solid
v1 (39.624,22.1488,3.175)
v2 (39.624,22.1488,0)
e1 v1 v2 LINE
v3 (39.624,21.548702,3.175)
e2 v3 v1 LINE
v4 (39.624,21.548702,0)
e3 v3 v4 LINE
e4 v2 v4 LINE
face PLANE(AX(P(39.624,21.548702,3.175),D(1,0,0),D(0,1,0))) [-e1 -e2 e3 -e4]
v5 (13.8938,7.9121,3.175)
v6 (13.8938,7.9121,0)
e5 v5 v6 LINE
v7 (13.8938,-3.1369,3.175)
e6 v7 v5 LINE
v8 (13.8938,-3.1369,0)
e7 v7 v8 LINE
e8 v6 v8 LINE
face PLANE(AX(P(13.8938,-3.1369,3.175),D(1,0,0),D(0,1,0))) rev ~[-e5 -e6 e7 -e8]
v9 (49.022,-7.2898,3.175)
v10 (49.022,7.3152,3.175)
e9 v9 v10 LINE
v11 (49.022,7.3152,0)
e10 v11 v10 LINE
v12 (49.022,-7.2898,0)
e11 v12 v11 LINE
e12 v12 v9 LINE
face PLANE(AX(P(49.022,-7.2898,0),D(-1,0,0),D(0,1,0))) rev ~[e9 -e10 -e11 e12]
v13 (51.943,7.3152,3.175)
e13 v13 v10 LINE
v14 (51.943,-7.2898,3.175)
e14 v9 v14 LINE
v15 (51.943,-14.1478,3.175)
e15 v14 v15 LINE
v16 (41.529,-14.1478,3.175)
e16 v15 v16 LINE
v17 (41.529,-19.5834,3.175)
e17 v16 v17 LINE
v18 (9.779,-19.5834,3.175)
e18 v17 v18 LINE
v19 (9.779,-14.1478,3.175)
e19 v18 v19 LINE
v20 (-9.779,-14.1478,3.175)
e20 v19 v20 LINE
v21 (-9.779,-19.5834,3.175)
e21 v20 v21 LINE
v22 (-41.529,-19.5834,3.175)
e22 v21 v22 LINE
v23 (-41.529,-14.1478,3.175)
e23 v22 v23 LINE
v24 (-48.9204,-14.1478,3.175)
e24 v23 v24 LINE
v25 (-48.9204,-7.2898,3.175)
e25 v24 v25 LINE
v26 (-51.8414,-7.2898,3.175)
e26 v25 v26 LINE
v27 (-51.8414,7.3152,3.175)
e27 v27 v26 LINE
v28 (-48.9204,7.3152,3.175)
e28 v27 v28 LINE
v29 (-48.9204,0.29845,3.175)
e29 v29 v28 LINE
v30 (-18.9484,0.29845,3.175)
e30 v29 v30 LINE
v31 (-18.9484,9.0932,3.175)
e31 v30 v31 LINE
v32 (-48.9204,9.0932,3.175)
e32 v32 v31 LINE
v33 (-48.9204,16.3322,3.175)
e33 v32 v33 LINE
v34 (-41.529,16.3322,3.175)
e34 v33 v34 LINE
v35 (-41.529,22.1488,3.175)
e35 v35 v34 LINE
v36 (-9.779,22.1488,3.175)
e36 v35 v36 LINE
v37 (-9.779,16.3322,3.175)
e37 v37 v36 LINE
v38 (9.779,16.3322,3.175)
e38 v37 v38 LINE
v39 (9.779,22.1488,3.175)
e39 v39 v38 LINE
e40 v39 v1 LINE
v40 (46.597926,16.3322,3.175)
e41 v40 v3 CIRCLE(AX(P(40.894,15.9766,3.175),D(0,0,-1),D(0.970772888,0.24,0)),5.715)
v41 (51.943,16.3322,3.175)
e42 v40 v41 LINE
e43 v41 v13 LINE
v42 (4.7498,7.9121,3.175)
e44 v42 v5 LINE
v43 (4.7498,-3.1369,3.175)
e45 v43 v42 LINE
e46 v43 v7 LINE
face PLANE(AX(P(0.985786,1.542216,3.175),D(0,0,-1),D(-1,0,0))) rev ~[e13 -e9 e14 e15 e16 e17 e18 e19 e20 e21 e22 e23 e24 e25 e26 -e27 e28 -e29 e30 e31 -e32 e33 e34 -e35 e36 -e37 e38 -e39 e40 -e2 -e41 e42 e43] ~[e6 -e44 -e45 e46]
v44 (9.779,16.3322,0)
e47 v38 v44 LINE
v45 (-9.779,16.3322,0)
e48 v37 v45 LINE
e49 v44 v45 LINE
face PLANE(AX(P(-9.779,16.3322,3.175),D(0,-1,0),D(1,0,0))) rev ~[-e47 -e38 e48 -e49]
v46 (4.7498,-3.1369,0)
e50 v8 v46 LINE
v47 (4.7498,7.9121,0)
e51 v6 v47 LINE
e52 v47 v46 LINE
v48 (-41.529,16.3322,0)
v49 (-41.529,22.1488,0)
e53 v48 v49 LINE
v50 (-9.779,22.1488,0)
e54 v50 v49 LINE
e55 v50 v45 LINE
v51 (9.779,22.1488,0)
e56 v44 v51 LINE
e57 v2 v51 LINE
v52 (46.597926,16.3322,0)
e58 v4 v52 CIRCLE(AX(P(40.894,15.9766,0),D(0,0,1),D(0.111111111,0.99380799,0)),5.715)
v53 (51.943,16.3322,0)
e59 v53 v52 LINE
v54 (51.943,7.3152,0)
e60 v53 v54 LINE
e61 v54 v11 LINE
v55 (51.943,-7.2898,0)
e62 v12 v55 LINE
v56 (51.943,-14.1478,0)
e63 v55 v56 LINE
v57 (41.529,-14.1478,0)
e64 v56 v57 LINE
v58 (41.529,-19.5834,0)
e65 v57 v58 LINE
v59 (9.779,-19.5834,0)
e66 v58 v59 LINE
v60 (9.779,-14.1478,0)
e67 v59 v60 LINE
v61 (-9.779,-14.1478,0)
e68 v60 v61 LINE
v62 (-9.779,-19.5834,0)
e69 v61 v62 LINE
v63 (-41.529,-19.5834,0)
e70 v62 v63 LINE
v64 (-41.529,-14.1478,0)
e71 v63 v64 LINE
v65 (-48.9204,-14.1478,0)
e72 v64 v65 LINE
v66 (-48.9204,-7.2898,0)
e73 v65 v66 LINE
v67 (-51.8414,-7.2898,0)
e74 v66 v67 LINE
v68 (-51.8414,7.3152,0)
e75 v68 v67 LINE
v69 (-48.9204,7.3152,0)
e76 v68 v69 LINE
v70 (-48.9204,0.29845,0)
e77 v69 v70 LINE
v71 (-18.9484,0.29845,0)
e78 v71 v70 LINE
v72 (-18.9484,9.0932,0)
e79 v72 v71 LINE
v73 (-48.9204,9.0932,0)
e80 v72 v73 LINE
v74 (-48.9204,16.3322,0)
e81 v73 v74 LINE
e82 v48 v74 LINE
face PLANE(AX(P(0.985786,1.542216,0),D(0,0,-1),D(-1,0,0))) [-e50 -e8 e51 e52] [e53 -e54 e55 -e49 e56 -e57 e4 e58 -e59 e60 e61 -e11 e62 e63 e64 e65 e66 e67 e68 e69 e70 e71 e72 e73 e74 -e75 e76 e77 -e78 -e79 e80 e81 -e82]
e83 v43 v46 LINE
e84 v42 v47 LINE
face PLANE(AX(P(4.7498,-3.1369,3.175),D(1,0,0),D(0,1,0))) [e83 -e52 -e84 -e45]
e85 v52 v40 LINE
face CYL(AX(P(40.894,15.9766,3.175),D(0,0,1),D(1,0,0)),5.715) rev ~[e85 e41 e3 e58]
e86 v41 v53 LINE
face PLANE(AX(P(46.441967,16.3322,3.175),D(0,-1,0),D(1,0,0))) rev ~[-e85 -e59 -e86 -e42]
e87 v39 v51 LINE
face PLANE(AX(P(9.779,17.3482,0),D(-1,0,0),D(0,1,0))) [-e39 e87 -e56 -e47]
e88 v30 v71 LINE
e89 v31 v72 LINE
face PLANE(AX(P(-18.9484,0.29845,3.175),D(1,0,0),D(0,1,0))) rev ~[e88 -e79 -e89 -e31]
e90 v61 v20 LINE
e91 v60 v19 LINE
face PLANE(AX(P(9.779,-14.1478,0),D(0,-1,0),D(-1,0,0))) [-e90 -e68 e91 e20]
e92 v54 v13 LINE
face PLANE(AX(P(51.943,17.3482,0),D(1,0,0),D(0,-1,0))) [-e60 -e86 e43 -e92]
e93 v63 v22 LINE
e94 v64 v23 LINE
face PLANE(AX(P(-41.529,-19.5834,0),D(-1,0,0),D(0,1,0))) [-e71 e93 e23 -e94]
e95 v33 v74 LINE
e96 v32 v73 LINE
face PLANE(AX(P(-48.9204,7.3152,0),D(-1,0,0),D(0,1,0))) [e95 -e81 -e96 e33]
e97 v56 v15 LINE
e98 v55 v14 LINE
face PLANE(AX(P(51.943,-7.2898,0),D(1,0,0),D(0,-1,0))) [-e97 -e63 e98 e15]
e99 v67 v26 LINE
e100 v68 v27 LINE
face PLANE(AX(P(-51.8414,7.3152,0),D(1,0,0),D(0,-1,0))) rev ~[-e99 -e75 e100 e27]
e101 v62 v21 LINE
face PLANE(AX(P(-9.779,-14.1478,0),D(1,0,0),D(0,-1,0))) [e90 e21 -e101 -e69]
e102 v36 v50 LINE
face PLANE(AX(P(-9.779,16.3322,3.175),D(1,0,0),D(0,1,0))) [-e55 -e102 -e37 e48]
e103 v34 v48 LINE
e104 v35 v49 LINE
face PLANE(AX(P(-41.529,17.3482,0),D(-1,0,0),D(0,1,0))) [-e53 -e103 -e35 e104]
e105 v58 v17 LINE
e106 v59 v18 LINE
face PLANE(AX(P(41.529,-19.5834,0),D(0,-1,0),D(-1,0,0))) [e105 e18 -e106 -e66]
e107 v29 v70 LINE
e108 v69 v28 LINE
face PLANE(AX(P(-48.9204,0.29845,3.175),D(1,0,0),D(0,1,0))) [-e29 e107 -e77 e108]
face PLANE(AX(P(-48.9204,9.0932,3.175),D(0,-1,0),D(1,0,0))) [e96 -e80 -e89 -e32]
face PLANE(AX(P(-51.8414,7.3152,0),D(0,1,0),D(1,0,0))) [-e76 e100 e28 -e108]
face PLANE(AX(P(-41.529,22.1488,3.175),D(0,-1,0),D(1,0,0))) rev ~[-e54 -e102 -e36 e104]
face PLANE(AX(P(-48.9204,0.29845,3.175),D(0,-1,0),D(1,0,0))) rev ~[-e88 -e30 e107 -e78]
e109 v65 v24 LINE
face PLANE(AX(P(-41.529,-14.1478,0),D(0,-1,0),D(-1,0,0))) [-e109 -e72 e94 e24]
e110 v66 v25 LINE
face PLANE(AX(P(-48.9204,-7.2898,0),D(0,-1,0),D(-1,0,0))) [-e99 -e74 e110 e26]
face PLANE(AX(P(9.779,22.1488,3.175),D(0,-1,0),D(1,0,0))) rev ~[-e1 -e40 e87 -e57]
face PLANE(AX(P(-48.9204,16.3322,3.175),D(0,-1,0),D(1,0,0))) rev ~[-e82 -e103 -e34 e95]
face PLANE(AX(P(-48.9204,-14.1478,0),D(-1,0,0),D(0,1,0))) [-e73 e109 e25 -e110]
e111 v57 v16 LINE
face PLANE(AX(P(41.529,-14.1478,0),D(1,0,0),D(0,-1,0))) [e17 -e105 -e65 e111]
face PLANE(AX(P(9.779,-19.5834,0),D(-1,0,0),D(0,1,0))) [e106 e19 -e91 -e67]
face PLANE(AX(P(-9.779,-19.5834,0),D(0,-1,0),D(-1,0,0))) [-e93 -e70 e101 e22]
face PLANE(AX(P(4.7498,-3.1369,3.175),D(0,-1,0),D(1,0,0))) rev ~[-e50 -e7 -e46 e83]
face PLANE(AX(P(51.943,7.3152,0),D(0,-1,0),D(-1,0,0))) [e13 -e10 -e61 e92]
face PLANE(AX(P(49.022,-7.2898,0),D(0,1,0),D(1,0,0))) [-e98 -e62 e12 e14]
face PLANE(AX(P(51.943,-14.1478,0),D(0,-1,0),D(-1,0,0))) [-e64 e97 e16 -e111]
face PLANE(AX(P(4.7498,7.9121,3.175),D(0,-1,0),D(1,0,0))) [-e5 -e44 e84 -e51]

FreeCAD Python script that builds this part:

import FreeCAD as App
import Part
import Sketcher
Q = App.Units.Quantity


def add_polygon(sketch, points):
    """Adds a closed chain of lines whose ends are joined by coincident constraints."""
    first, n = sketch.GeometryCount, len(points)
    for a, b in zip(points, points[1:] + points[:1]):
        sketch.addGeometry(Part.LineSegment(App.Vector(*a, 0), App.Vector(*b, 0)), False)
    for i in range(n):
        sketch.addConstraint(Sketcher.Constraint("Coincident", first + i, 2, first + (i + 1) % n, 1))

doc = App.newDocument("Part")
body = doc.addObject("PartDesign::Body", "Body")

# Sketch on XY plane
sketch1 = doc.addObject("Sketcher::SketchObject", "Sketch")
body.addObject(sketch1)
sketch1.AttachmentSupport = (doc.XY_Plane, [""])
sketch1.MapMode = "FlatFace"
add_polygon(sketch1, [(-51.8, 7.3), (-51.8, -7.3), (-48.9, -7.3), (-48.9, -14.1), (-41.5, -14.1), (-41.5, -19.6), (-9.8, -19.6), (-9.8, -14.1), (9.8, -14.1), (9.8, -19.6), (41.5, -19.6), (41.5, -14.1), (51.9, -14.1), (51.9, -7.3), (49, -7.3), (49, 7.3), (51.9, 7.3), (51.9, 17.3), (41.5, 17.3), (41.5, 22.8), (9.8, 22.8), (9.8, 17.3), (-9.8, 17.3), (-9.8, 22.8), (-41.5, 22.8), (-41.5, 17.3), (-48.9, 17.3), (-48.9, 7.3)])  # lines 0-27
sketch1.addConstraint([
    Sketcher.Constraint("Vertical", 0),
    Sketcher.Constraint("Horizontal", 1),
    Sketcher.Constraint("Vertical", 2),
    Sketcher.Constraint("Horizontal", 3),
    Sketcher.Constraint("Vertical", 4),
    Sketcher.Constraint("Horizontal", 5),
    Sketcher.Constraint("Vertical", 6),
    Sketcher.Constraint("Horizontal", 7),
    Sketcher.Constraint("Vertical", 8),
    Sketcher.Constraint("Horizontal", 9),
    Sketcher.Constraint("Vertical", 10),
    Sketcher.Constraint("Horizontal", 11),
    Sketcher.Constraint("Vertical", 12),
    Sketcher.Constraint("Horizontal", 13),
    Sketcher.Constraint("Vertical", 14),
    Sketcher.Constraint("Horizontal", 15),
    Sketcher.Constraint("Vertical", 16),
    Sketcher.Constraint("Horizontal", 17),
    Sketcher.Constraint("Vertical", 18),
    Sketcher.Constraint("Horizontal", 19),
    Sketcher.Constraint("Vertical", 20),
    Sketcher.Constraint("Horizontal", 21),
    Sketcher.Constraint("Vertical", 22),
    Sketcher.Constraint("Horizontal", 23),
    Sketcher.Constraint("Vertical", 24),
    Sketcher.Constraint("Horizontal", 25),
    Sketcher.Constraint("Vertical", 26),
    Sketcher.Constraint("Horizontal", 27),
    Sketcher.Constraint("Symmetric", 5, 2, 8, 2, -2),
    Sketcher.Constraint("Symmetric", 3, 2, 10, 2, -2),
    Sketcher.Constraint("Symmetric", 19, 2, 22, 2, -2),
    Sketcher.Constraint("Symmetric", 17, 2, 24, 2, -2),
    Sketcher.Constraint("Horizontal", 3, 2, 6, 2),
    Sketcher.Constraint("Horizontal", 1, 2, 12, 2),
    Sketcher.Constraint("Horizontal", 17, 2, 20, 2),
    Sketcher.Constraint("Horizontal", 15, 2, 26, 2),
    Sketcher.Constraint("Vertical", 12, 2, 15, 2),
    Sketcher.Constraint("Vertical", 10, 2, 17, 2),
    Sketcher.Constraint("Vertical", 8, 2, 19, 2),
    Sketcher.Constraint("Vertical", 2, 2, 25, 2),
    Sketcher.Constraint("Equal", 1, 13),
    Sketcher.Constraint("Equal", 10, 18),
    Sketcher.Constraint("DistanceX", 5, 1, 5, 2, Q("1.25 in")),
    Sketcher.Constraint("DistanceX", 7, 1, 7, 2, Q("0.77 in")),
    Sketcher.Constraint("DistanceX", 11, 1, 11, 2, Q("0.41 in")),
    Sketcher.Constraint("DistanceY", 2, 2, 2, 1, Q("0.27 in")),
    Sketcher.Constraint("DistanceX", 1, 1, 1, 2, Q("0.115 in")),
    Sketcher.Constraint("DistanceX", 3, 1, 3, 2, Q("0.291 in")),
    Sketcher.Constraint("DistanceY", 0, 2, 0, 1, Q("0.575 in")),
    Sketcher.Constraint("DistanceY", 4, 2, 4, 1, Q("0.214 in")),
    Sketcher.Constraint("DistanceY", 16, 1, 16, 2, Q("0.395 in")),
    Sketcher.Constraint("DistanceY", 0, 2, -1, 1, Q("0.287 in")),
])
pad1 = doc.addObject("PartDesign::Pad", "Pad")
body.addObject(pad1)
pad1.Profile = sketch1
pad1.Length = Q("0.125 in")

# Sketch on XY plane
sketch2 = doc.addObject("Sketcher::SketchObject", "Sketch001")
body.addObject(sketch2)
sketch2.AttachmentSupport = (doc.XY_Plane, [""])
sketch2.MapMode = "FlatFace"
sketch2.AttachmentOffset = App.Placement(App.Vector(0, 0, 0.125 * 25.4), App.Rotation())
sketch2.addGeometry(Part.Circle(App.Vector(41, 16, 0), App.Vector(0, 0, 1), 6), False)  # 0
add_polygon(sketch2, [(-49, 9), (-49, 0), (-19, 0), (-19, 9)])  # lines 1-4
add_polygon(sketch2, [(5, 8), (5, -3), (14, -3), (14, 8)])  # lines 5-8
sketch2.addConstraint([
    Sketcher.Constraint("Vertical", 1),
    Sketcher.Constraint("Horizontal", 2),
    Sketcher.Constraint("Vertical", 3),
    Sketcher.Constraint("Horizontal", 4),
    Sketcher.Constraint("Vertical", 5),
    Sketcher.Constraint("Horizontal", 6),
    Sketcher.Constraint("Vertical", 7),
    Sketcher.Constraint("Horizontal", 8),
    Sketcher.Constraint("Diameter", 0, Q("0.45 in")),
    Sketcher.Constraint("DistanceX", 2, 1, 2, 2, Q("1.18 in")),
    Sketcher.Constraint("DistanceX", 6, 1, 6, 2, Q("0.36 in")),
    Sketcher.Constraint("DistanceY", 5, 2, 5, 1, Q("0.435 in")),
    Sketcher.Constraint("DistanceX", -1, 1, 0, 3, Q("1.61 in")),
    Sketcher.Constraint("DistanceY", -1, 1, 0, 3, Q("0.629 in")),
    Sketcher.Constraint("DistanceX", 1, 2, -1, 1, Q("1.926 in")),
    Sketcher.Constraint("DistanceY", -1, 1, 3, 2, Q("0.358 in")),
    Sketcher.Constraint("DistanceX", -1, 1, 5, 2, Q("0.187 in")),
    Sketcher.Constraint("DistanceY", 5, 2, -1, 1, Q("0.1235 in")),
    Sketcher.Constraint("DistanceY", 1, 2, 1, 1, 8.79475),
])
pocket1 = doc.addObject("PartDesign::Pocket", "Pocket")
body.addObject(pocket1)
pocket1.Profile = sketch2
pocket1.Length = Q("0.214 in")

# Sketch on XY plane
sketch3 = doc.addObject("Sketcher::SketchObject", "Sketch002")
body.addObject(sketch3)
sketch3.AttachmentSupport = (doc.XY_Plane, [""])
sketch3.MapMode = "FlatFace"
sketch3.AttachmentOffset = App.Placement(App.Vector(0, 0, 0.125 * 25.4), App.Rotation())
add_polygon(sketch3, [(39.6, 22.8), (39.6, 21.5), (41.5, 21.5), (41.5, 22.8)])  # lines 0-3
sketch3.addConstraint([
    Sketcher.Constraint("Vertical", 0),
    Sketcher.Constraint("Horizontal", 1),
    Sketcher.Constraint("Vertical", 2),
    Sketcher.Constraint("Horizontal", 3),
    Sketcher.Constraint("DistanceX", 1, 1, 1, 2, Q("0.075 in")),
    Sketcher.Constraint("DistanceX", -1, 1, 0, 2, Q("1.56 in")),
    Sketcher.Constraint("DistanceY", -1, 1, 2, 2, Q("0.897 in")),
    Sketcher.Constraint("DistanceY", 0, 2, 0, 1, 1.235098),
])
pocket2 = doc.addObject("PartDesign::Pocket", "Pocket001")
body.addObject(pocket2)
pocket2.Profile = sketch3
pocket2.Type = "ThroughAll"

# Sketch on XY plane
sketch4 = doc.addObject("Sketcher::SketchObject", "Sketch003")
body.addObject(sketch4)
sketch4.AttachmentSupport = (doc.XY_Plane, [""])
sketch4.MapMode = "FlatFace"
sketch4.AttachmentOffset = App.Placement(App.Vector(0, 0, 0.125 * 25.4), App.Rotation())
add_polygon(sketch4, [(46.4, 17.3), (46.4, 16.3), (51.9, 16.3), (51.9, 17.3)])  # lines 0-3
add_polygon(sketch4, [(-9.8, 17.3), (-9.8, 16.3), (9.8, 16.3), (9.8, 17.3)])  # lines 4-7
add_polygon(sketch4, [(-48.9, 17.3), (-48.9, 16.3), (-41.5, 16.3), (-41.5, 17.3)])  # lines 8-11
sketch4.addConstraint([
    Sketcher.Constraint("Vertical", 0),
    Sketcher.Constraint("Horizontal", 1),
    Sketcher.Constraint("Vertical", 2),
    Sketcher.Constraint("Horizontal", 3),
    Sketcher.Constraint("Vertical", 4),
    Sketcher.Constraint("Horizontal", 5),
    Sketcher.Constraint("Vertical", 6),
    Sketcher.Constraint("Horizontal", 7),
    Sketcher.Constraint("Vertical", 8),
    Sketcher.Constraint("Horizontal", 9),
    Sketcher.Constraint("Vertical", 10),
    Sketcher.Constraint("Horizontal", 11),
    Sketcher.Constraint("Horizontal", 1, 2, 4, 2),
    Sketcher.Constraint("Horizontal", 3, 2, 6, 2),
    Sketcher.Constraint("Horizontal", 5, 2, 8, 2),
    Sketcher.Constraint("Horizontal", 7, 2, 10, 2),
    Sketcher.Constraint("DistanceX", 5, 1, 5, 2, Q("0.77 in")),
    Sketcher.Constraint("DistanceY", 0, 2, 0, 1, Q("0.04 in")),
    Sketcher.Constraint("DistanceX", 9, 1, 9, 2, Q("0.291 in")),
    Sketcher.Constraint("DistanceX", 4, 2, 1, 2, Q("2.43 in")),
    Sketcher.Constraint("DistanceX", 9, 2, 4, 2, Q("1.25 in")),
    Sketcher.Constraint("DistanceY", -1, 1, 0, 2, Q("0.643 in")),
    Sketcher.Constraint("DistanceX", -1, 1, 1, 2, Q("2.045 in")),
    Sketcher.Constraint("DistanceX", 1, 1, 1, 2, 5.501033),
])
pocket3 = doc.addObject("PartDesign::Pocket", "Pocket002")
body.addObject(pocket3)
pocket3.Profile = sketch4
pocket3.Type = "ThroughAll"

# Sketch on XY plane
sketch5 = doc.addObject("Sketcher::SketchObject", "Sketch004")
body.addObject(sketch5)
sketch5.AttachmentSupport = (doc.XY_Plane, [""])
sketch5.MapMode = "FlatFace"
sketch5.AttachmentOffset = App.Placement(App.Vector(0, 0, 0.125 * 25.4), App.Rotation())
add_polygon(sketch5, [(-41.5, 22.8), (-41.5, 22.1), (-9.8, 22.1), (-9.8, 22.8)])  # lines 0-3
add_polygon(sketch5, [(9.8, 22.8), (9.8, 22.1), (39.6, 22.1), (39.6, 22.8)])  # lines 4-7
sketch5.addConstraint([
    Sketcher.Constraint("Vertical", 0),
    Sketcher.Constraint("Horizontal", 1),
    Sketcher.Constraint("Vertical", 2),
    Sketcher.Constraint("Horizontal", 3),
    Sketcher.Constraint("Vertical", 4),
    Sketcher.Constraint("Horizontal", 5),
    Sketcher.Constraint("Vertical", 6),
    Sketcher.Constraint("Horizontal", 7),
    Sketcher.Constraint("Symmetric", 1, 2, 4, 2, -2),
    Sketcher.Constraint("Horizontal", 3, 2, 6, 2),
    Sketcher.Constraint("DistanceX", 1, 1, 1, 2, Q("1.25 in")),
    Sketcher.Constraint("DistanceX", 5, 1, 5, 2, Q("1.175 in")),
    Sketcher.Constraint("DistanceY", 0, 2, 0, 1, Q("0.025 in")),
    Sketcher.Constraint("DistanceX", -1, 1, 5, 2, Q("1.56 in")),
    Sketcher.Constraint("DistanceY", -1, 1, 0, 2, Q("0.872 in")),
])
pocket4 = doc.addObject("PartDesign::Pocket", "Pocket003")
body.addObject(pocket4)
pocket4.Profile = sketch5
pocket4.Type = "ThroughAll"

doc.recompute()
